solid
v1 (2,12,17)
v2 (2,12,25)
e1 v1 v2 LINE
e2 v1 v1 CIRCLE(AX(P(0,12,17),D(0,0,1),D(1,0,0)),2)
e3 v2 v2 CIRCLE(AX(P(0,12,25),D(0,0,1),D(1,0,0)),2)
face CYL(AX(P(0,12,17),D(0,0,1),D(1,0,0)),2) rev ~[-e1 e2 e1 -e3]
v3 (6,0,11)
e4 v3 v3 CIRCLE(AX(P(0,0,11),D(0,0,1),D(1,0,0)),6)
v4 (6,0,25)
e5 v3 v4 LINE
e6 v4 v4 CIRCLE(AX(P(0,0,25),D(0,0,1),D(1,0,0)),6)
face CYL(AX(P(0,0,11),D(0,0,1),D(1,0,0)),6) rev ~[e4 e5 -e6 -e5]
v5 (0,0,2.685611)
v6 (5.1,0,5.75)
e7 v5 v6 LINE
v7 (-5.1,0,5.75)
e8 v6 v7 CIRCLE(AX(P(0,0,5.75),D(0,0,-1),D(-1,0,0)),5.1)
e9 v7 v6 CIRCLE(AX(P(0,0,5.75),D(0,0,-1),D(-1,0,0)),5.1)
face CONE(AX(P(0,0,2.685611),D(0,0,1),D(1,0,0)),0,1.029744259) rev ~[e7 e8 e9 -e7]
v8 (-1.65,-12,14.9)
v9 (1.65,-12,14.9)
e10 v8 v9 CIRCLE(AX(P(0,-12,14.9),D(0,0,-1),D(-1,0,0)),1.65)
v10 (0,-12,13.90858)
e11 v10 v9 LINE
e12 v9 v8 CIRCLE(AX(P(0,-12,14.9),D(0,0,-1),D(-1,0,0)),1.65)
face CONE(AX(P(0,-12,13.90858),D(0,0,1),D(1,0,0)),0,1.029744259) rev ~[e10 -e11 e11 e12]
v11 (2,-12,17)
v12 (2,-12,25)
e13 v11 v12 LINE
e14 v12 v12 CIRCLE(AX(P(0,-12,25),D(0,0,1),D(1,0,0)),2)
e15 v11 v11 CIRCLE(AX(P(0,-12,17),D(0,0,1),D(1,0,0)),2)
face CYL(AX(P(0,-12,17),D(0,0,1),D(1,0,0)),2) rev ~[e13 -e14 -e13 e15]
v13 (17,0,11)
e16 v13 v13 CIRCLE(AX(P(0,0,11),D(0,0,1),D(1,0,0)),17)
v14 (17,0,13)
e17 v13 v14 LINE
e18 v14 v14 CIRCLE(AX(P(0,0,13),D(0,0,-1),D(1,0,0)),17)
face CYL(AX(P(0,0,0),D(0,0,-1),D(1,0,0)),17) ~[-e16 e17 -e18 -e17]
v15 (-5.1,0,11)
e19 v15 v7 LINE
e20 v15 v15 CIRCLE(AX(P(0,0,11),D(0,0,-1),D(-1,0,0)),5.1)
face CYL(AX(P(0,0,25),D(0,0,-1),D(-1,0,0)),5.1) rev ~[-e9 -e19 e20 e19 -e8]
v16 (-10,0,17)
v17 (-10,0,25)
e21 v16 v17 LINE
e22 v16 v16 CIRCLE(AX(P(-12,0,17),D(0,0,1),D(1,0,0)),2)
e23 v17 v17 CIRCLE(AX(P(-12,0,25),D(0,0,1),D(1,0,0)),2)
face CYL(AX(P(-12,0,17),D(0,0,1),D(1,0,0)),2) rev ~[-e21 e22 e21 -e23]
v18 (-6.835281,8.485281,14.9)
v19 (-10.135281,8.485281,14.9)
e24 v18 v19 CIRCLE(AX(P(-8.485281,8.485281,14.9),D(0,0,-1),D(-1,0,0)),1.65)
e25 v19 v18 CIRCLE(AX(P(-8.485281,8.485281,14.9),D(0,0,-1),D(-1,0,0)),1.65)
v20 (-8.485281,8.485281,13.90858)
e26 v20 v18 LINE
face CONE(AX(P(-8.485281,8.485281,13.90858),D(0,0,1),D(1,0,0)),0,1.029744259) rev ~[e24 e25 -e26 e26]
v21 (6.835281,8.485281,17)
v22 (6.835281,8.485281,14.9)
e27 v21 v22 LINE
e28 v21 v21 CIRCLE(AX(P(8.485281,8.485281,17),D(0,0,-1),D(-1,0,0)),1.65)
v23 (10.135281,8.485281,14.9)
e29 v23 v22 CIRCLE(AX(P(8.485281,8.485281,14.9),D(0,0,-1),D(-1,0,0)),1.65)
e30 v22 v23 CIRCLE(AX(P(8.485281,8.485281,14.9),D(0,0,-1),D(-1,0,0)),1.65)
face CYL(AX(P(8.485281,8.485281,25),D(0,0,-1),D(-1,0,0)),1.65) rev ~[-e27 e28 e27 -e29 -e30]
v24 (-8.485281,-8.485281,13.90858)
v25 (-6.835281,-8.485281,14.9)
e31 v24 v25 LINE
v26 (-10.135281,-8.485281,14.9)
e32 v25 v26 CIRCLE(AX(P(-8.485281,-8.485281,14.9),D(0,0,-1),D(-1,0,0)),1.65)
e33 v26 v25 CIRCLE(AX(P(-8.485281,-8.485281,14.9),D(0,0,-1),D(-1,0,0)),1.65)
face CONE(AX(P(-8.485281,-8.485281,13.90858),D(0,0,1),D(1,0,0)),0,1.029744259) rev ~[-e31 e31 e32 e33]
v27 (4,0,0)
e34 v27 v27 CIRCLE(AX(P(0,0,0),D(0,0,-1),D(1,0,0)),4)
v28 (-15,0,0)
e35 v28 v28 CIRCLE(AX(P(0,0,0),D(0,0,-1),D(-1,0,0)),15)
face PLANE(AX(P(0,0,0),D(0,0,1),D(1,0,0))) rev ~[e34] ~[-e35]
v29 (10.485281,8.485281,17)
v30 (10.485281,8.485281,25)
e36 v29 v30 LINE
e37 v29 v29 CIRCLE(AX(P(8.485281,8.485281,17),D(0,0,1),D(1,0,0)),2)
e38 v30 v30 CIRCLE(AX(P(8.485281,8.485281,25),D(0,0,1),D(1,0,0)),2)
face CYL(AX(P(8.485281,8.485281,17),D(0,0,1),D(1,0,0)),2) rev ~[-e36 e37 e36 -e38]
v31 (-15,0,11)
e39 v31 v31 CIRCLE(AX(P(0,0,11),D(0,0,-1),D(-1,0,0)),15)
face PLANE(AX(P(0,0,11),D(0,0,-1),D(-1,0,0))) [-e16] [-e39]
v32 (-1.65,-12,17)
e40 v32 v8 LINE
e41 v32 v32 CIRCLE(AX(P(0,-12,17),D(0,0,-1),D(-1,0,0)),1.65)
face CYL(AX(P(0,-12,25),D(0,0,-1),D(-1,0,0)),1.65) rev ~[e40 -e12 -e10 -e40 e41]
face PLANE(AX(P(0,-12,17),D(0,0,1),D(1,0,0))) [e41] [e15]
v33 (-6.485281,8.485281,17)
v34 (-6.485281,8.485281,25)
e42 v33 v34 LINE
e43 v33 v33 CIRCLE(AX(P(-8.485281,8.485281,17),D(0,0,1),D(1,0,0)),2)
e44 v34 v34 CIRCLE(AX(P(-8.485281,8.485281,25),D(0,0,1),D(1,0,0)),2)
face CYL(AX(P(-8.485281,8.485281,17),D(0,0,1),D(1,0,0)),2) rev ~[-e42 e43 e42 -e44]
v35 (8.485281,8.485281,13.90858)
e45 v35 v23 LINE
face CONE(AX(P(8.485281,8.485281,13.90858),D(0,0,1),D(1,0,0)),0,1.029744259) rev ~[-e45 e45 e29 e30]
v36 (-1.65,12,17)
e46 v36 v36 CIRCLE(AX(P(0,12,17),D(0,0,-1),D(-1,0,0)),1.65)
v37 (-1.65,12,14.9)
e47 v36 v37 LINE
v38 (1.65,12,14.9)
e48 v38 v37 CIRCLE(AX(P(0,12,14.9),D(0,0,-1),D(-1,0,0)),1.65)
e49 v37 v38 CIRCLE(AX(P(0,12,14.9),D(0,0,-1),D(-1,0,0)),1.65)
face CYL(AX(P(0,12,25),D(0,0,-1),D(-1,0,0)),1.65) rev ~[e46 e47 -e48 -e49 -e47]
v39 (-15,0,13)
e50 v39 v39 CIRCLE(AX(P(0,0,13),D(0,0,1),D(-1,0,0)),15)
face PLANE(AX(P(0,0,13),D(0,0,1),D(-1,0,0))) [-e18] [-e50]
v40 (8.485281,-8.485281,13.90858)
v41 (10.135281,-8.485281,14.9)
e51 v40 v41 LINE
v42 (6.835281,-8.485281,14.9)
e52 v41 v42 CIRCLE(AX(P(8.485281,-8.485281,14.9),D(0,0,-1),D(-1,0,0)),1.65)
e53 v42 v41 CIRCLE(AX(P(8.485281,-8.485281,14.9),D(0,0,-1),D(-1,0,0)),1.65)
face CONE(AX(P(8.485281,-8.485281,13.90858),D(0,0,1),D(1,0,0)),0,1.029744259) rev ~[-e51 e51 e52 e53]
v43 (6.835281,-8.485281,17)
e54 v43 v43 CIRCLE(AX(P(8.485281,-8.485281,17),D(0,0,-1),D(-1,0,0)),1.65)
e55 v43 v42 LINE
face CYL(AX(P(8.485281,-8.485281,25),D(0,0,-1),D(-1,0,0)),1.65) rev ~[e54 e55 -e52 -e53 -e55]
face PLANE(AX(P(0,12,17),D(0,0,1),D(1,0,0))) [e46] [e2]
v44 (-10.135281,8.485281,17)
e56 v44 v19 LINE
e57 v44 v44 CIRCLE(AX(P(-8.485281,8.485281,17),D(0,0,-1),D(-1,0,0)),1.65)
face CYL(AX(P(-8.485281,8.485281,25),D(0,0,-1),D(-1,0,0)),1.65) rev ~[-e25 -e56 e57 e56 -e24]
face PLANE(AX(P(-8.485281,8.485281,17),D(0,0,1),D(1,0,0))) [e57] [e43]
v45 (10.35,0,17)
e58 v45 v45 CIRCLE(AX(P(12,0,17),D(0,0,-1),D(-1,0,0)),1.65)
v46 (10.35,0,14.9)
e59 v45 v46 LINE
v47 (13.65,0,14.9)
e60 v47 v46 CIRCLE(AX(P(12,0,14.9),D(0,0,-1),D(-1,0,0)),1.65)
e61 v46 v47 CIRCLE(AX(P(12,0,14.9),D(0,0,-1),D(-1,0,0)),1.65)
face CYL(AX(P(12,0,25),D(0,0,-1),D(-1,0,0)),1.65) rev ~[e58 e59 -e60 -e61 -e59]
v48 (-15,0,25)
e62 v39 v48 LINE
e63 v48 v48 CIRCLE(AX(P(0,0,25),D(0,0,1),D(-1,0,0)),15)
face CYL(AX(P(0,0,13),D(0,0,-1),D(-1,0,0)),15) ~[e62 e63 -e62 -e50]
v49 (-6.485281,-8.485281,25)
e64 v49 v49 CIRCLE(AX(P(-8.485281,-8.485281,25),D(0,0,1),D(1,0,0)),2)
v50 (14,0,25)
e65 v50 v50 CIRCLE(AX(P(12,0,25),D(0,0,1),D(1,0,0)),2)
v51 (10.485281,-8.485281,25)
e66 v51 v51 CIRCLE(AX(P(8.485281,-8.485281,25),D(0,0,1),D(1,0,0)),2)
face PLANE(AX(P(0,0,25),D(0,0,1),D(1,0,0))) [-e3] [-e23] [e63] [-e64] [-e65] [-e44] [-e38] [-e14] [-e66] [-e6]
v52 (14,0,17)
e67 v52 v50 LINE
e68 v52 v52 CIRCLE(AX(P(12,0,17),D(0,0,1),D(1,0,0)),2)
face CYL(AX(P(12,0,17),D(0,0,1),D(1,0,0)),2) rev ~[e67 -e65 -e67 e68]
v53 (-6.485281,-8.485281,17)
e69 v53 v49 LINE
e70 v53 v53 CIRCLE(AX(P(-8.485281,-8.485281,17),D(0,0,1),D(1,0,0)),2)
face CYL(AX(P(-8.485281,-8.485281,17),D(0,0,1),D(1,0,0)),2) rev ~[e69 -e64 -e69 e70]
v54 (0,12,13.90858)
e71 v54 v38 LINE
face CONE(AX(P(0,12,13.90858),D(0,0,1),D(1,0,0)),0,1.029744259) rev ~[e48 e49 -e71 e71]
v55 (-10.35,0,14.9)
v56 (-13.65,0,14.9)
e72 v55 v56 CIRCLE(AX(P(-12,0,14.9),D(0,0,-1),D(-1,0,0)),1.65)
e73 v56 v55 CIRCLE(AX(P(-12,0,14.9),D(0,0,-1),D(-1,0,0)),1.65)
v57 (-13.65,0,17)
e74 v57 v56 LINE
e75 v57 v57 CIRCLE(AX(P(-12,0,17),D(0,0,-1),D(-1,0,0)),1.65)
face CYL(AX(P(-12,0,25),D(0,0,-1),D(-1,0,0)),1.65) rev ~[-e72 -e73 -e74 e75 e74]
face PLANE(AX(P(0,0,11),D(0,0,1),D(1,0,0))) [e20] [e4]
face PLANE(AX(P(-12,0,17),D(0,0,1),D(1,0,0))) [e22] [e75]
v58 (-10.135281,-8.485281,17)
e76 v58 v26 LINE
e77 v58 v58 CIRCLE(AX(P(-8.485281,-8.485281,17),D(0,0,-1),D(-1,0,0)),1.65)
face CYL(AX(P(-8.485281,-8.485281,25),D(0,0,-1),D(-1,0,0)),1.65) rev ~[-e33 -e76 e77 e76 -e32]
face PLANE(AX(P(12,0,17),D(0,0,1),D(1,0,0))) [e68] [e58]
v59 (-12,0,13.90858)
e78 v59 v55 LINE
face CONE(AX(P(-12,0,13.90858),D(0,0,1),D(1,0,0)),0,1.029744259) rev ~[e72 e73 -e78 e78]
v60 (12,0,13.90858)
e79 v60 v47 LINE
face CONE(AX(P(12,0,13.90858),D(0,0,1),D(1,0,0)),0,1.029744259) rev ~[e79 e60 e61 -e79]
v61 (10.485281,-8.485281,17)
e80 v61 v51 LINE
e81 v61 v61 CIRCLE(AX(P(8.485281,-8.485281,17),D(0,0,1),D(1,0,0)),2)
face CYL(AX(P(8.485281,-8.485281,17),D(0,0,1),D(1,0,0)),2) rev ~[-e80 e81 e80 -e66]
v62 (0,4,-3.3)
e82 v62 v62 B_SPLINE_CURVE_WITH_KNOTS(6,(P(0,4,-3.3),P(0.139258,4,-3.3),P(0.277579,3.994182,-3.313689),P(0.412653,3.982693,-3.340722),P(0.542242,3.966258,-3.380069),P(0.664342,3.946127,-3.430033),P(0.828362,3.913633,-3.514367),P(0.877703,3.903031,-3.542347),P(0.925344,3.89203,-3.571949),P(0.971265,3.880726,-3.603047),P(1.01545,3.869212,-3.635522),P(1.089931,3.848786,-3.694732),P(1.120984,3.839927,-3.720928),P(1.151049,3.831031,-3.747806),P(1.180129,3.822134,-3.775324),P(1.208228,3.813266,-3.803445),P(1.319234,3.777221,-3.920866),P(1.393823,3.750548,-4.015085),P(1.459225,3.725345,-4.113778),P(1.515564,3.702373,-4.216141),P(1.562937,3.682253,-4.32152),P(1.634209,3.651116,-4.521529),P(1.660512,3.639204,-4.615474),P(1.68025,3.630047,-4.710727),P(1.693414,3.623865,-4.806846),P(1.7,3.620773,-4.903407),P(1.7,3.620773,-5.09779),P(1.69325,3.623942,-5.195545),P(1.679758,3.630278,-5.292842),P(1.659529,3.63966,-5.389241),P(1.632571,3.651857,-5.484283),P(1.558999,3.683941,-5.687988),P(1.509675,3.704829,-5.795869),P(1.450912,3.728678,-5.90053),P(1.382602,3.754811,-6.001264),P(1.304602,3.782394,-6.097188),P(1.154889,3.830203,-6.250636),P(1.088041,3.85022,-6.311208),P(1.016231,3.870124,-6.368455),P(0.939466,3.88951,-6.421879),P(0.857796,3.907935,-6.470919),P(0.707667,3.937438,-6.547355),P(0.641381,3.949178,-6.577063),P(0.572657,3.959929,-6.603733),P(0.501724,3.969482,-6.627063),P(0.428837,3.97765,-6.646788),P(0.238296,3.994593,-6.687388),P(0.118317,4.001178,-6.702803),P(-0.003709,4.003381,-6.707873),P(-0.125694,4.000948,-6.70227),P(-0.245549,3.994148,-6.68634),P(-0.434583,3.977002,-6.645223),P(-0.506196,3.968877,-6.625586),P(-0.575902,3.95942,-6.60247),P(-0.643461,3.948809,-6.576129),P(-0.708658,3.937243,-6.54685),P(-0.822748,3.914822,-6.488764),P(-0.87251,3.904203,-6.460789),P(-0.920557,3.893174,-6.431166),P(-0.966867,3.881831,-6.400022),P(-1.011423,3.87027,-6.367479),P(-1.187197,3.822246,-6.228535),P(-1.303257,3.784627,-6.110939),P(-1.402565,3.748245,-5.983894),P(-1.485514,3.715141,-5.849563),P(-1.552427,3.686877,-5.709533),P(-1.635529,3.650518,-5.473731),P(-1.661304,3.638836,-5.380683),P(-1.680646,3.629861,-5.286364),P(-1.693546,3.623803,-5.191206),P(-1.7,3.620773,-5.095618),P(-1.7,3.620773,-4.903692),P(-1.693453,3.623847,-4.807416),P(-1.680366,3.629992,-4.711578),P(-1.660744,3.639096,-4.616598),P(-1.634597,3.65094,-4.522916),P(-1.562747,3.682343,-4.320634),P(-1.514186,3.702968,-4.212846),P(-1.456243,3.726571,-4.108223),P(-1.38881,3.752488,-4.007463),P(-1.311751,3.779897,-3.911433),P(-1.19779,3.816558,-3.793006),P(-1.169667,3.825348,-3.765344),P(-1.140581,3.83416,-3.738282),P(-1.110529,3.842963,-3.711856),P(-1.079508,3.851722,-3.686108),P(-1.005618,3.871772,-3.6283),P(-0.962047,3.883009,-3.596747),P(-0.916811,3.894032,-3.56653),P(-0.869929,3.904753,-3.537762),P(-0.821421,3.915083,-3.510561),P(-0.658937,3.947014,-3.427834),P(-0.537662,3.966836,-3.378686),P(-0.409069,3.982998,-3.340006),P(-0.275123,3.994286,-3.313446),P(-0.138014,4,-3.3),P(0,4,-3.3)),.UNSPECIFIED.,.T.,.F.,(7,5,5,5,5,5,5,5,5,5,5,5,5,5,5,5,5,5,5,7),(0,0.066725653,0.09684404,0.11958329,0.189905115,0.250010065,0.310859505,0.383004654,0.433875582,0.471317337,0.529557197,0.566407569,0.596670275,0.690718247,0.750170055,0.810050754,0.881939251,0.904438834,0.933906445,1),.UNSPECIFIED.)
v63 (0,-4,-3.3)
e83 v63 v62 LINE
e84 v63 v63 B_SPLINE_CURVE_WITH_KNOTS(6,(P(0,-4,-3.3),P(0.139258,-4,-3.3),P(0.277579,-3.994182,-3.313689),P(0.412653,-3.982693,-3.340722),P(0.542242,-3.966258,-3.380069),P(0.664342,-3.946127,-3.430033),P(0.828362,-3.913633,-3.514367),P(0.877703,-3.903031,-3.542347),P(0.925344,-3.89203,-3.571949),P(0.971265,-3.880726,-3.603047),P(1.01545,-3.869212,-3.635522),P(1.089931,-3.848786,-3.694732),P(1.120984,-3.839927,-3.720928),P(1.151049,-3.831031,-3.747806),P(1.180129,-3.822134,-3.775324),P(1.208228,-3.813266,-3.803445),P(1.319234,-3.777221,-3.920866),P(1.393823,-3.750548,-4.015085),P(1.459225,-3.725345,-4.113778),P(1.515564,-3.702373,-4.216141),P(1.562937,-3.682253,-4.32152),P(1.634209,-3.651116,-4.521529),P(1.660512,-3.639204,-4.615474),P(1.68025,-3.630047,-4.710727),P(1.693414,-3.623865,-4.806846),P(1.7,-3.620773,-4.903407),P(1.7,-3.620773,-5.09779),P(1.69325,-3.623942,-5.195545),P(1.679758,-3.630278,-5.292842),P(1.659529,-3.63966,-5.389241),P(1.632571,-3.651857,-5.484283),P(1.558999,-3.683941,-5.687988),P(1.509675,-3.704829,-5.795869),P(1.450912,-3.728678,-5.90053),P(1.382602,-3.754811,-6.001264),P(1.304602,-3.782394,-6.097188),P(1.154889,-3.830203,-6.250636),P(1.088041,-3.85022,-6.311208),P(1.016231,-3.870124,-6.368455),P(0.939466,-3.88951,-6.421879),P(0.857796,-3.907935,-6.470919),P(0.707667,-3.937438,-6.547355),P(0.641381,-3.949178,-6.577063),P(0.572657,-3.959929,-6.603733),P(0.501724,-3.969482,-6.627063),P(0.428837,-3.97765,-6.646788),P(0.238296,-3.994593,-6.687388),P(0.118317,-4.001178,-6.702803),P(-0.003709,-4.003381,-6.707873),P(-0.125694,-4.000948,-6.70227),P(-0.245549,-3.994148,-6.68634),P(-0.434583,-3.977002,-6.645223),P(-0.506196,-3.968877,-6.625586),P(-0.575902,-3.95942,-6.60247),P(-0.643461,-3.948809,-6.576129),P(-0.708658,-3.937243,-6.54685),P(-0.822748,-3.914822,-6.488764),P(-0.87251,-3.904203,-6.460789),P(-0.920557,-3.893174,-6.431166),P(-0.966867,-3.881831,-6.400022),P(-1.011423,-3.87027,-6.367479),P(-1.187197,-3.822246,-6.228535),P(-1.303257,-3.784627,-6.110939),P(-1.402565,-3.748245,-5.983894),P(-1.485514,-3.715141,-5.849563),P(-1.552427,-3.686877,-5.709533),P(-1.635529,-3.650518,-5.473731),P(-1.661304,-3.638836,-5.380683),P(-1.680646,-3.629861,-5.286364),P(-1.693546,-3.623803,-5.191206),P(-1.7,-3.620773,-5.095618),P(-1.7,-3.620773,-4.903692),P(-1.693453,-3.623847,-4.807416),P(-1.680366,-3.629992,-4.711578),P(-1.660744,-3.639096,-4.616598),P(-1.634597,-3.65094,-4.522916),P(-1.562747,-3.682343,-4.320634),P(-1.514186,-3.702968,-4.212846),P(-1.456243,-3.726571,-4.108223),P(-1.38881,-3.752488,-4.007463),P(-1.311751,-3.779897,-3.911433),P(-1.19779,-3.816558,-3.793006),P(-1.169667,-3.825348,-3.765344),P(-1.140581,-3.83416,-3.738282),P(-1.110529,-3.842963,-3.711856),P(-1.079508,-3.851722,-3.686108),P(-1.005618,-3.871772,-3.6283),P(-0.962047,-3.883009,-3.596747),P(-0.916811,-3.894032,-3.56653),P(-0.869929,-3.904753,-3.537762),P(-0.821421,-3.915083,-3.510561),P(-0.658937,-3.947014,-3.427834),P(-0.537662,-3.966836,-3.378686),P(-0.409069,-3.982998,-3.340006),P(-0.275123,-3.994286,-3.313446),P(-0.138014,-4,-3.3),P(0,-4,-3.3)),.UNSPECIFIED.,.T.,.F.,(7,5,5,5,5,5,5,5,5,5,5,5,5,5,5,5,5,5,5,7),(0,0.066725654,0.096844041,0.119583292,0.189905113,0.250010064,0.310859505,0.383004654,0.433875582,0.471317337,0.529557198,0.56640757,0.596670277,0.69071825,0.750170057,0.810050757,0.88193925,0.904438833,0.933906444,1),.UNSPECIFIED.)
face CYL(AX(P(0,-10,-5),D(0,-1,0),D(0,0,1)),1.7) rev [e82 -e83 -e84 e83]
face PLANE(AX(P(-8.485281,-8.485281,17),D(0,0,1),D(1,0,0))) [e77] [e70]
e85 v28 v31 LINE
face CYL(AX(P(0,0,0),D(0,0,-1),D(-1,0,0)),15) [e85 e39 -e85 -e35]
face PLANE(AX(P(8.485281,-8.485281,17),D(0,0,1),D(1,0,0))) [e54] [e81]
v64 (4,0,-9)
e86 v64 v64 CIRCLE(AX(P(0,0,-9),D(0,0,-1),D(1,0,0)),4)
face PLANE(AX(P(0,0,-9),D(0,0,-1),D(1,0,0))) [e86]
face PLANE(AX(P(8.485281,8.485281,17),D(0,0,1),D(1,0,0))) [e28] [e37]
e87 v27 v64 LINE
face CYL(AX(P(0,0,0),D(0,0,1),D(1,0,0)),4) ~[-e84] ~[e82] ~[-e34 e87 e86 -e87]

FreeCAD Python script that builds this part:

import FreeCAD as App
import Part
import Sketcher
from FreeCAD import Vector
Q = App.Units.Quantity

doc = App.newDocument("Part")
body = doc.addObject("PartDesign::Body", "Body")

sketch1 = body.newObject("Sketcher::SketchObject", "Sketch")
sketch1.AttachmentSupport = (doc.getObject("XY_Plane"), [""])
sketch1.MapMode = "FlatFace"
sketch1.addGeometry(Part.Circle(Vector(0, 0, 0), Vector(0, 0, 1), 17), False)
sketch1.addConstraint(Sketcher.Constraint("Coincident", 0, 3, -1, 1))
sketch1.addConstraint(Sketcher.Constraint("Diameter", 0, Q("34 mm")))
pad1 = body.newObject("PartDesign::Pad", "Pad")
pad1.Profile = sketch1
pad1.Length = 25

sketch2 = body.newObject("Sketcher::SketchObject", "Sketch001")
sketch2.AttachmentSupport = (doc.getObject("XY_Plane"), [""])
sketch2.MapMode = "FlatFace"
sketch2.addGeometry(Part.Circle(Vector(0, 0, 0), Vector(0, 0, 1), 4), False)
sketch2.addConstraint(Sketcher.Constraint("Coincident", 0, 3, -1, 1))
sketch2.addConstraint(Sketcher.Constraint("Diameter", 0, Q("8 mm")))
pad2 = body.newObject("PartDesign::Pad", "Pad001")
pad2.Profile = sketch2
pad2.Length = 9
pad2.Reversed = True

sketch3 = body.newObject("Sketcher::SketchObject", "Sketch002")
sketch3.AttachmentSupport = (doc.getObject("XY_Plane"), [""])
sketch3.MapMode = "FlatFace"
sketch3.addGeometry(Part.Circle(Vector(0, 0, 0), Vector(0, 0, 1), 17), False)
sketch3.addGeometry(Part.Circle(Vector(0, 0, 0), Vector(0, 0, 1), 15), False)
sketch3.addConstraint(Sketcher.Constraint("Coincident", 0, 3, -1, 1))
sketch3.addConstraint(Sketcher.Constraint("Coincident", 1, 3, -1, 1))
sketch3.addConstraint(Sketcher.Constraint("Diameter", 0, Q("34 mm")))
sketch3.addConstraint(Sketcher.Constraint("Diameter", 1, Q("30 mm")))
pocket1 = body.newObject("PartDesign::Pocket", "Pocket")
pocket1.Profile = sketch3
pocket1.Length = 11
pocket1.Reversed = True

sketch4 = body.newObject("Sketcher::SketchObject", "Sketch003")
sketch4.AttachmentSupport = (doc.getObject("XY_Plane"), [""])
sketch4.MapMode = "FlatFace"
sketch4.AttachmentOffset = App.Placement(Vector(0, 0, 13), App.Rotation())
sketch4.addGeometry(Part.Circle(Vector(0, 0, 0), Vector(0, 0, 1), 17), False)
sketch4.addGeometry(Part.Circle(Vector(0, 0, 0), Vector(0, 0, 1), 15), False)
sketch4.addConstraint(Sketcher.Constraint("Coincident", 0, 3, -1, 1))
sketch4.addConstraint(Sketcher.Constraint("Coincident", 1, 3, -1, 1))
sketch4.addConstraint(Sketcher.Constraint("Diameter", 0, Q("34 mm")))
sketch4.addConstraint(Sketcher.Constraint("Diameter", 1, Q("30 mm")))
pocket2 = body.newObject("PartDesign::Pocket", "Pocket001")
pocket2.Profile = sketch4
pocket2.Length = 12
pocket2.Reversed = True

sketch5 = body.newObject("Sketcher::SketchObject", "Sketch004")
sketch5.AttachmentSupport = (doc.getObject("XY_Plane"), [""])
sketch5.MapMode = "FlatFace"
sketch5.AttachmentOffset = App.Placement(Vector(0, 0, 25), App.Rotation())
sketch5.addGeometry(Part.Circle(Vector(-12, 0, 0), Vector(0, 0, 1), 1.6), False)
sketch5.addGeometry(Part.Circle(Vector(-8.5, 8.5, 0), Vector(0, 0, 1), 1.6), False)
sketch5.addGeometry(Part.Circle(Vector(0, 12, 0), Vector(0, 0, 1), 1.6), False)
sketch5.addGeometry(Part.Circle(Vector(8.5, 8.5, 0), Vector(0, 0, 1), 1.6), False)
sketch5.addGeometry(Part.Circle(Vector(12, 0, 0), Vector(0, 0, 1), 1.6), False)
sketch5.addGeometry(Part.Circle(Vector(8.5, -8.5, 0), Vector(0, 0, 1), 1.6), False)
sketch5.addGeometry(Part.Circle(Vector(-8.5, -8.5, 0), Vector(0, 0, 1), 1.6), False)
sketch5.addGeometry(Part.Circle(Vector(0, -12, 0), Vector(0, 0, 1), 1.6), False)
sketch5.addConstraint(Sketcher.Constraint("Equal", 0, 1))
sketch5.addConstraint(Sketcher.Constraint("Equal", 1, 2))
sketch5.addConstraint(Sketcher.Constraint("Equal", 2, 3))
sketch5.addConstraint(Sketcher.Constraint("Equal", 3, 4))
sketch5.addConstraint(Sketcher.Constraint("Equal", 4, 5))
sketch5.addConstraint(Sketcher.Constraint("Equal", 5, 6))
sketch5.addConstraint(Sketcher.Constraint("Equal", 6, 7))
sketch5.addConstraint(Sketcher.Constraint("Symmetric", 0, 3, 4, 3, -1, 1))
sketch5.addConstraint(Sketcher.Constraint("Symmetric", 1, 3, 5, 3, -1, 1))
sketch5.addConstraint(Sketcher.Constraint("Symmetric", 3, 3, 6, 3, -1, 1))
sketch5.addConstraint(Sketcher.Constraint("Symmetric", 2, 3, 7, 3, -1, 1))
sketch5.addConstraint(Sketcher.Constraint("Symmetric", 1, 3, 3, 3, -2))
sketch5.addConstraint(Sketcher.Constraint("PointOnObject", 0, 3, -1))
sketch5.addConstraint(Sketcher.Constraint("PointOnObject", 2, 3, -2))
sketch5.addConstraint(Sketcher.Constraint("Diameter", 0, Q("3.3 mm")))
sketch5.addConstraint(Sketcher.Constraint("DistanceX", 0, 3, -1, 1, Q("12 mm")))
sketch5.addConstraint(Sketcher.Constraint("DistanceY", -1, 1, 2, 3, Q("12 mm")))
sketch5.addConstraint(Sketcher.Constraint("DistanceX", 1, 3, -1, 1, Q("8.485281 mm")))
sketch5.addConstraint(Sketcher.Constraint("DistanceY", -1, 1, 1, 3, Q("8.485281 mm")))
doc.recompute()
hole = body.newObject("PartDesign::Hole", "Hole")
hole.Profile = sketch5
hole.ThreadType = "None"
hole.Diameter = 3.3
hole.DepthType = "Dimension"
hole.Depth = 10.1
hole.DrillPoint = "Angled"
hole.DrillPointAngle = 118
hole.HoleCutType = "Counterbore"
hole.HoleCutDiameter = 4
hole.HoleCutDepth = 8

sketch6 = body.newObject("Sketcher::SketchObject", "Sketch005")
sketch6.AttachmentSupport = (doc.getObject("XZ_Plane"), [""])
sketch6.MapMode = "FlatFace"
sketch6.addGeometry(Part.Circle(Vector(0, -5, 0), Vector(0, 0, 1), 1.7), False)
sketch6.addConstraint(Sketcher.Constraint("PointOnObject", 0, 3, -2))
sketch6.addConstraint(Sketcher.Constraint("Diameter", 0, Q("3.4 mm")))
sketch6.addConstraint(Sketcher.Constraint("DistanceY", 0, 3, -1, 1, Q("5 mm")))
pocket3 = body.newObject("PartDesign::Pocket", "Pocket002")
pocket3.Profile = sketch6
pocket3.Type = "ThroughAll"
pocket3.Midplane = True

sketch7 = body.newObject("Sketcher::SketchObject", "Sketch006")
sketch7.AttachmentSupport = (doc.getObject("XY_Plane"), [""])
sketch7.MapMode = "FlatFace"
sketch7.AttachmentOffset = App.Placement(Vector(0, 0, 25), App.Rotation())
sketch7.addGeometry(Part.Circle(Vector(0, 0, 0), Vector(0, 0, 1), 5), False)
sketch7.addConstraint(Sketcher.Constraint("Coincident", 0, 3, -1, 1))
sketch7.addConstraint(Sketcher.Constraint("Diameter", 0, Q("10.2 mm")))
doc.recompute()
hole2 = body.newObject("PartDesign::Hole", "Hole001")
hole2.Profile = sketch7
hole2.ThreadType = "None"
hole2.Diameter = 10.2
hole2.DepthType = "Dimension"
hole2.Depth = 19.25
hole2.DrillPoint = "Angled"
hole2.DrillPointAngle = 118
hole2.HoleCutType = "Counterbore"
hole2.HoleCutDiameter = 12
hole2.HoleCutDepth = 14

doc.recompute()
